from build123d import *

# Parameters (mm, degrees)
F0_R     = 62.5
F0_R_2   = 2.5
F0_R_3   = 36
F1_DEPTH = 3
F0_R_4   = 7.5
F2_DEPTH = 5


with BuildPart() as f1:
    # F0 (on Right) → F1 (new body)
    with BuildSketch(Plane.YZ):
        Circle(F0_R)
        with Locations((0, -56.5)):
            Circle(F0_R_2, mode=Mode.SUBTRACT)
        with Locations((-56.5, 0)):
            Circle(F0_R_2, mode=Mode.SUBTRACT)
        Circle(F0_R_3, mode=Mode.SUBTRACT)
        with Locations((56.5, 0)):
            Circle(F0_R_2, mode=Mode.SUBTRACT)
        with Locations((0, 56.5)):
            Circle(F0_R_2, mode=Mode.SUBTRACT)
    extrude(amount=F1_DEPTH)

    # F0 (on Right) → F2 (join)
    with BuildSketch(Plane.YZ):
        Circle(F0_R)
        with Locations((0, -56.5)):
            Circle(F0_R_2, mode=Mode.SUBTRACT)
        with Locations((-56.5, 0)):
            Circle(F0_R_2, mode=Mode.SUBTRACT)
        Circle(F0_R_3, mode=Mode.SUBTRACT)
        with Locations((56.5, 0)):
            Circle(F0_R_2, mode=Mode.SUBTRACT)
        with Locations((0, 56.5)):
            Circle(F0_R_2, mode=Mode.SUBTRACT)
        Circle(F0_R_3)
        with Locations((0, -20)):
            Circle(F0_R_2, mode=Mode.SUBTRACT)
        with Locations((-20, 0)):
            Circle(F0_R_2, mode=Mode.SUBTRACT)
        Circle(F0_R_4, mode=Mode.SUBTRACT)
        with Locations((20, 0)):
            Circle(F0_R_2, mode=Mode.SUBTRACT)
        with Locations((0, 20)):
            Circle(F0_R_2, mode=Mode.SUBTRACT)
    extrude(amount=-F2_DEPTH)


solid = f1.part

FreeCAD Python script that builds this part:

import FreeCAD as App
import Part
import Sketcher
Q = App.Units.Quantity

doc = App.newDocument("Part")
body = doc.addObject("PartDesign::Body", "Body")

# Sketch on YZ plane
sketch1 = body.newObject("Sketcher::SketchObject", "Sketch")
sketch1.AttachmentSupport = (doc.getObject("YZ_Plane"), [""])
sketch1.MapMode = "FlatFace"
sketch1.addGeometry(Part.Circle(App.Vector(0, 0, 0), App.Vector(0, 0, 1), 62.5), False)
sketch1.addGeometry(Part.Circle(App.Vector(0, -56.5, 0), App.Vector(0, 0, 1), 2.5), False)
sketch1.addGeometry(Part.Circle(App.Vector(-56.5, 0, 0), App.Vector(0, 0, 1), 2.5), False)
sketch1.addGeometry(Part.Circle(App.Vector(0, 0, 0), App.Vector(0, 0, 1), 36), False)
sketch1.addGeometry(Part.Circle(App.Vector(56.5, 0, 0), App.Vector(0, 0, 1), 2.5), False)
sketch1.addGeometry(Part.Circle(App.Vector(0, 56.5, 0), App.Vector(0, 0, 1), 2.5), False)
sketch1.addConstraint(Sketcher.Constraint("Coincident", 0, 3, -1, 1))
sketch1.addConstraint(Sketcher.Constraint("Coincident", 3, 3, -1, 1))
sketch1.addConstraint(Sketcher.Constraint("Equal", 1, 2))
sketch1.addConstraint(Sketcher.Constraint("Equal", 2, 4))
sketch1.addConstraint(Sketcher.Constraint("Equal", 4, 5))
sketch1.addConstraint(Sketcher.Constraint("Symmetric", 2, 3, 4, 3, -1, 1))
sketch1.addConstraint(Sketcher.Constraint("Symmetric", 1, 3, 5, 3, -1, 1))
sketch1.addConstraint(Sketcher.Constraint("PointOnObject", 1, 3, -2))
sketch1.addConstraint(Sketcher.Constraint("PointOnObject", 2, 3, -1))
sketch1.addConstraint(Sketcher.Constraint("Diameter", 0, Q("125 mm")))
sketch1.addConstraint(Sketcher.Constraint("Diameter", 1, Q("5 mm")))
sketch1.addConstraint(Sketcher.Constraint("Diameter", 3, Q("72 mm")))
sketch1.addConstraint(Sketcher.Constraint("DistanceX", 2, 3, 4, 3, Q("113 mm")))
sketch1.addConstraint(Sketcher.Constraint("DistanceY", 1, 3, 5, 3, Q("113 mm")))
pad1 = body.newObject("PartDesign::Pad", "Pad")
pad1.Profile = sketch1
pad1.Length = 3

# Sketch on YZ plane
sketch2 = body.newObject("Sketcher::SketchObject", "Sketch001")
sketch2.AttachmentSupport = (doc.getObject("YZ_Plane"), [""])
sketch2.MapMode = "FlatFace"
sketch2.addGeometry(Part.Circle(App.Vector(0, 0, 0), App.Vector(0, 0, 1), 62.5), False)
sketch2.addGeometry(Part.Circle(App.Vector(0, -56.5, 0), App.Vector(0, 0, 1), 2.5), False)
sketch2.addGeometry(Part.Circle(App.Vector(0, -20, 0), App.Vector(0, 0, 1), 2.5), False)
sketch2.addGeometry(Part.Circle(App.Vector(-56.5, 0, 0), App.Vector(0, 0, 1), 2.5), False)
sketch2.addGeometry(Part.Circle(App.Vector(-20, 0, 0), App.Vector(0, 0, 1), 2.5), False)
sketch2.addGeometry(Part.Circle(App.Vector(0, 0, 0), App.Vector(0, 0, 1), 7.5), False)
sketch2.addGeometry(Part.Circle(App.Vector(20, 0, 0), App.Vector(0, 0, 1), 2.5), False)
sketch2.addGeometry(Part.Circle(App.Vector(0, 20, 0), App.Vector(0, 0, 1), 2.5), False)
sketch2.addGeometry(Part.Circle(App.Vector(56.5, 0, 0), App.Vector(0, 0, 1), 2.5), False)
sketch2.addGeometry(Part.Circle(App.Vector(0, 56.5, 0), App.Vector(0, 0, 1), 2.5), False)
sketch2.addConstraint(Sketcher.Constraint("Coincident", 0, 3, -1, 1))
sketch2.addConstraint(Sketcher.Constraint("Coincident", 5, 3, -1, 1))
sketch2.addConstraint(Sketcher.Constraint("Equal", 1, 2))
sketch2.addConstraint(Sketcher.Constraint("Equal", 2, 3))
sketch2.addConstraint(Sketcher.Constraint("Equal", 3, 4))
sketch2.addConstraint(Sketcher.Constraint("Equal", 4, 6))
sketch2.addConstraint(Sketcher.Constraint("Equal", 6, 7))
sketch2.addConstraint(Sketcher.Constraint("Equal", 7, 8))
sketch2.addConstraint(Sketcher.Constraint("Equal", 8, 9))
sketch2.addConstraint(Sketcher.Constraint("Symmetric", 4, 3, 6, 3, -1, 1))
sketch2.addConstraint(Sketcher.Constraint("Symmetric", 2, 3, 7, 3, -1, 1))
sketch2.addConstraint(Sketcher.Constraint("Symmetric", 3, 3, 8, 3, -1, 1))
sketch2.addConstraint(Sketcher.Constraint("Symmetric", 1, 3, 9, 3, -1, 1))
sketch2.addConstraint(Sketcher.Constraint("PointOnObject", 1, 3, -2))
sketch2.addConstraint(Sketcher.Constraint("PointOnObject", 2, 3, -2))
sketch2.addConstraint(Sketcher.Constraint("PointOnObject", 3, 3, -1))
sketch2.addConstraint(Sketcher.Constraint("PointOnObject", 4, 3, -1))
sketch2.addConstraint(Sketcher.Constraint("Diameter", 0, Q("125 mm")))
sketch2.addConstraint(Sketcher.Constraint("Diameter", 1, Q("5 mm")))
sketch2.addConstraint(Sketcher.Constraint("Diameter", 5, Q("15 mm")))
sketch2.addConstraint(Sketcher.Constraint("DistanceY", 2, 3, -1, 1, Q("20 mm")))
sketch2.addConstraint(Sketcher.Constraint("DistanceX", 4, 3, -1, 1, Q("20 mm")))
sketch2.addConstraint(Sketcher.Constraint("DistanceY", 1, 3, -1, 1, Q("56.5 mm")))
sketch2.addConstraint(Sketcher.Constraint("DistanceX", 3, 3, -1, 1, Q("56.5 mm")))
pad2 = body.newObject("PartDesign::Pad", "Pad001")
pad2.Profile = sketch2
pad2.Length = 5
pad2.Reversed = True

doc.recompute()
